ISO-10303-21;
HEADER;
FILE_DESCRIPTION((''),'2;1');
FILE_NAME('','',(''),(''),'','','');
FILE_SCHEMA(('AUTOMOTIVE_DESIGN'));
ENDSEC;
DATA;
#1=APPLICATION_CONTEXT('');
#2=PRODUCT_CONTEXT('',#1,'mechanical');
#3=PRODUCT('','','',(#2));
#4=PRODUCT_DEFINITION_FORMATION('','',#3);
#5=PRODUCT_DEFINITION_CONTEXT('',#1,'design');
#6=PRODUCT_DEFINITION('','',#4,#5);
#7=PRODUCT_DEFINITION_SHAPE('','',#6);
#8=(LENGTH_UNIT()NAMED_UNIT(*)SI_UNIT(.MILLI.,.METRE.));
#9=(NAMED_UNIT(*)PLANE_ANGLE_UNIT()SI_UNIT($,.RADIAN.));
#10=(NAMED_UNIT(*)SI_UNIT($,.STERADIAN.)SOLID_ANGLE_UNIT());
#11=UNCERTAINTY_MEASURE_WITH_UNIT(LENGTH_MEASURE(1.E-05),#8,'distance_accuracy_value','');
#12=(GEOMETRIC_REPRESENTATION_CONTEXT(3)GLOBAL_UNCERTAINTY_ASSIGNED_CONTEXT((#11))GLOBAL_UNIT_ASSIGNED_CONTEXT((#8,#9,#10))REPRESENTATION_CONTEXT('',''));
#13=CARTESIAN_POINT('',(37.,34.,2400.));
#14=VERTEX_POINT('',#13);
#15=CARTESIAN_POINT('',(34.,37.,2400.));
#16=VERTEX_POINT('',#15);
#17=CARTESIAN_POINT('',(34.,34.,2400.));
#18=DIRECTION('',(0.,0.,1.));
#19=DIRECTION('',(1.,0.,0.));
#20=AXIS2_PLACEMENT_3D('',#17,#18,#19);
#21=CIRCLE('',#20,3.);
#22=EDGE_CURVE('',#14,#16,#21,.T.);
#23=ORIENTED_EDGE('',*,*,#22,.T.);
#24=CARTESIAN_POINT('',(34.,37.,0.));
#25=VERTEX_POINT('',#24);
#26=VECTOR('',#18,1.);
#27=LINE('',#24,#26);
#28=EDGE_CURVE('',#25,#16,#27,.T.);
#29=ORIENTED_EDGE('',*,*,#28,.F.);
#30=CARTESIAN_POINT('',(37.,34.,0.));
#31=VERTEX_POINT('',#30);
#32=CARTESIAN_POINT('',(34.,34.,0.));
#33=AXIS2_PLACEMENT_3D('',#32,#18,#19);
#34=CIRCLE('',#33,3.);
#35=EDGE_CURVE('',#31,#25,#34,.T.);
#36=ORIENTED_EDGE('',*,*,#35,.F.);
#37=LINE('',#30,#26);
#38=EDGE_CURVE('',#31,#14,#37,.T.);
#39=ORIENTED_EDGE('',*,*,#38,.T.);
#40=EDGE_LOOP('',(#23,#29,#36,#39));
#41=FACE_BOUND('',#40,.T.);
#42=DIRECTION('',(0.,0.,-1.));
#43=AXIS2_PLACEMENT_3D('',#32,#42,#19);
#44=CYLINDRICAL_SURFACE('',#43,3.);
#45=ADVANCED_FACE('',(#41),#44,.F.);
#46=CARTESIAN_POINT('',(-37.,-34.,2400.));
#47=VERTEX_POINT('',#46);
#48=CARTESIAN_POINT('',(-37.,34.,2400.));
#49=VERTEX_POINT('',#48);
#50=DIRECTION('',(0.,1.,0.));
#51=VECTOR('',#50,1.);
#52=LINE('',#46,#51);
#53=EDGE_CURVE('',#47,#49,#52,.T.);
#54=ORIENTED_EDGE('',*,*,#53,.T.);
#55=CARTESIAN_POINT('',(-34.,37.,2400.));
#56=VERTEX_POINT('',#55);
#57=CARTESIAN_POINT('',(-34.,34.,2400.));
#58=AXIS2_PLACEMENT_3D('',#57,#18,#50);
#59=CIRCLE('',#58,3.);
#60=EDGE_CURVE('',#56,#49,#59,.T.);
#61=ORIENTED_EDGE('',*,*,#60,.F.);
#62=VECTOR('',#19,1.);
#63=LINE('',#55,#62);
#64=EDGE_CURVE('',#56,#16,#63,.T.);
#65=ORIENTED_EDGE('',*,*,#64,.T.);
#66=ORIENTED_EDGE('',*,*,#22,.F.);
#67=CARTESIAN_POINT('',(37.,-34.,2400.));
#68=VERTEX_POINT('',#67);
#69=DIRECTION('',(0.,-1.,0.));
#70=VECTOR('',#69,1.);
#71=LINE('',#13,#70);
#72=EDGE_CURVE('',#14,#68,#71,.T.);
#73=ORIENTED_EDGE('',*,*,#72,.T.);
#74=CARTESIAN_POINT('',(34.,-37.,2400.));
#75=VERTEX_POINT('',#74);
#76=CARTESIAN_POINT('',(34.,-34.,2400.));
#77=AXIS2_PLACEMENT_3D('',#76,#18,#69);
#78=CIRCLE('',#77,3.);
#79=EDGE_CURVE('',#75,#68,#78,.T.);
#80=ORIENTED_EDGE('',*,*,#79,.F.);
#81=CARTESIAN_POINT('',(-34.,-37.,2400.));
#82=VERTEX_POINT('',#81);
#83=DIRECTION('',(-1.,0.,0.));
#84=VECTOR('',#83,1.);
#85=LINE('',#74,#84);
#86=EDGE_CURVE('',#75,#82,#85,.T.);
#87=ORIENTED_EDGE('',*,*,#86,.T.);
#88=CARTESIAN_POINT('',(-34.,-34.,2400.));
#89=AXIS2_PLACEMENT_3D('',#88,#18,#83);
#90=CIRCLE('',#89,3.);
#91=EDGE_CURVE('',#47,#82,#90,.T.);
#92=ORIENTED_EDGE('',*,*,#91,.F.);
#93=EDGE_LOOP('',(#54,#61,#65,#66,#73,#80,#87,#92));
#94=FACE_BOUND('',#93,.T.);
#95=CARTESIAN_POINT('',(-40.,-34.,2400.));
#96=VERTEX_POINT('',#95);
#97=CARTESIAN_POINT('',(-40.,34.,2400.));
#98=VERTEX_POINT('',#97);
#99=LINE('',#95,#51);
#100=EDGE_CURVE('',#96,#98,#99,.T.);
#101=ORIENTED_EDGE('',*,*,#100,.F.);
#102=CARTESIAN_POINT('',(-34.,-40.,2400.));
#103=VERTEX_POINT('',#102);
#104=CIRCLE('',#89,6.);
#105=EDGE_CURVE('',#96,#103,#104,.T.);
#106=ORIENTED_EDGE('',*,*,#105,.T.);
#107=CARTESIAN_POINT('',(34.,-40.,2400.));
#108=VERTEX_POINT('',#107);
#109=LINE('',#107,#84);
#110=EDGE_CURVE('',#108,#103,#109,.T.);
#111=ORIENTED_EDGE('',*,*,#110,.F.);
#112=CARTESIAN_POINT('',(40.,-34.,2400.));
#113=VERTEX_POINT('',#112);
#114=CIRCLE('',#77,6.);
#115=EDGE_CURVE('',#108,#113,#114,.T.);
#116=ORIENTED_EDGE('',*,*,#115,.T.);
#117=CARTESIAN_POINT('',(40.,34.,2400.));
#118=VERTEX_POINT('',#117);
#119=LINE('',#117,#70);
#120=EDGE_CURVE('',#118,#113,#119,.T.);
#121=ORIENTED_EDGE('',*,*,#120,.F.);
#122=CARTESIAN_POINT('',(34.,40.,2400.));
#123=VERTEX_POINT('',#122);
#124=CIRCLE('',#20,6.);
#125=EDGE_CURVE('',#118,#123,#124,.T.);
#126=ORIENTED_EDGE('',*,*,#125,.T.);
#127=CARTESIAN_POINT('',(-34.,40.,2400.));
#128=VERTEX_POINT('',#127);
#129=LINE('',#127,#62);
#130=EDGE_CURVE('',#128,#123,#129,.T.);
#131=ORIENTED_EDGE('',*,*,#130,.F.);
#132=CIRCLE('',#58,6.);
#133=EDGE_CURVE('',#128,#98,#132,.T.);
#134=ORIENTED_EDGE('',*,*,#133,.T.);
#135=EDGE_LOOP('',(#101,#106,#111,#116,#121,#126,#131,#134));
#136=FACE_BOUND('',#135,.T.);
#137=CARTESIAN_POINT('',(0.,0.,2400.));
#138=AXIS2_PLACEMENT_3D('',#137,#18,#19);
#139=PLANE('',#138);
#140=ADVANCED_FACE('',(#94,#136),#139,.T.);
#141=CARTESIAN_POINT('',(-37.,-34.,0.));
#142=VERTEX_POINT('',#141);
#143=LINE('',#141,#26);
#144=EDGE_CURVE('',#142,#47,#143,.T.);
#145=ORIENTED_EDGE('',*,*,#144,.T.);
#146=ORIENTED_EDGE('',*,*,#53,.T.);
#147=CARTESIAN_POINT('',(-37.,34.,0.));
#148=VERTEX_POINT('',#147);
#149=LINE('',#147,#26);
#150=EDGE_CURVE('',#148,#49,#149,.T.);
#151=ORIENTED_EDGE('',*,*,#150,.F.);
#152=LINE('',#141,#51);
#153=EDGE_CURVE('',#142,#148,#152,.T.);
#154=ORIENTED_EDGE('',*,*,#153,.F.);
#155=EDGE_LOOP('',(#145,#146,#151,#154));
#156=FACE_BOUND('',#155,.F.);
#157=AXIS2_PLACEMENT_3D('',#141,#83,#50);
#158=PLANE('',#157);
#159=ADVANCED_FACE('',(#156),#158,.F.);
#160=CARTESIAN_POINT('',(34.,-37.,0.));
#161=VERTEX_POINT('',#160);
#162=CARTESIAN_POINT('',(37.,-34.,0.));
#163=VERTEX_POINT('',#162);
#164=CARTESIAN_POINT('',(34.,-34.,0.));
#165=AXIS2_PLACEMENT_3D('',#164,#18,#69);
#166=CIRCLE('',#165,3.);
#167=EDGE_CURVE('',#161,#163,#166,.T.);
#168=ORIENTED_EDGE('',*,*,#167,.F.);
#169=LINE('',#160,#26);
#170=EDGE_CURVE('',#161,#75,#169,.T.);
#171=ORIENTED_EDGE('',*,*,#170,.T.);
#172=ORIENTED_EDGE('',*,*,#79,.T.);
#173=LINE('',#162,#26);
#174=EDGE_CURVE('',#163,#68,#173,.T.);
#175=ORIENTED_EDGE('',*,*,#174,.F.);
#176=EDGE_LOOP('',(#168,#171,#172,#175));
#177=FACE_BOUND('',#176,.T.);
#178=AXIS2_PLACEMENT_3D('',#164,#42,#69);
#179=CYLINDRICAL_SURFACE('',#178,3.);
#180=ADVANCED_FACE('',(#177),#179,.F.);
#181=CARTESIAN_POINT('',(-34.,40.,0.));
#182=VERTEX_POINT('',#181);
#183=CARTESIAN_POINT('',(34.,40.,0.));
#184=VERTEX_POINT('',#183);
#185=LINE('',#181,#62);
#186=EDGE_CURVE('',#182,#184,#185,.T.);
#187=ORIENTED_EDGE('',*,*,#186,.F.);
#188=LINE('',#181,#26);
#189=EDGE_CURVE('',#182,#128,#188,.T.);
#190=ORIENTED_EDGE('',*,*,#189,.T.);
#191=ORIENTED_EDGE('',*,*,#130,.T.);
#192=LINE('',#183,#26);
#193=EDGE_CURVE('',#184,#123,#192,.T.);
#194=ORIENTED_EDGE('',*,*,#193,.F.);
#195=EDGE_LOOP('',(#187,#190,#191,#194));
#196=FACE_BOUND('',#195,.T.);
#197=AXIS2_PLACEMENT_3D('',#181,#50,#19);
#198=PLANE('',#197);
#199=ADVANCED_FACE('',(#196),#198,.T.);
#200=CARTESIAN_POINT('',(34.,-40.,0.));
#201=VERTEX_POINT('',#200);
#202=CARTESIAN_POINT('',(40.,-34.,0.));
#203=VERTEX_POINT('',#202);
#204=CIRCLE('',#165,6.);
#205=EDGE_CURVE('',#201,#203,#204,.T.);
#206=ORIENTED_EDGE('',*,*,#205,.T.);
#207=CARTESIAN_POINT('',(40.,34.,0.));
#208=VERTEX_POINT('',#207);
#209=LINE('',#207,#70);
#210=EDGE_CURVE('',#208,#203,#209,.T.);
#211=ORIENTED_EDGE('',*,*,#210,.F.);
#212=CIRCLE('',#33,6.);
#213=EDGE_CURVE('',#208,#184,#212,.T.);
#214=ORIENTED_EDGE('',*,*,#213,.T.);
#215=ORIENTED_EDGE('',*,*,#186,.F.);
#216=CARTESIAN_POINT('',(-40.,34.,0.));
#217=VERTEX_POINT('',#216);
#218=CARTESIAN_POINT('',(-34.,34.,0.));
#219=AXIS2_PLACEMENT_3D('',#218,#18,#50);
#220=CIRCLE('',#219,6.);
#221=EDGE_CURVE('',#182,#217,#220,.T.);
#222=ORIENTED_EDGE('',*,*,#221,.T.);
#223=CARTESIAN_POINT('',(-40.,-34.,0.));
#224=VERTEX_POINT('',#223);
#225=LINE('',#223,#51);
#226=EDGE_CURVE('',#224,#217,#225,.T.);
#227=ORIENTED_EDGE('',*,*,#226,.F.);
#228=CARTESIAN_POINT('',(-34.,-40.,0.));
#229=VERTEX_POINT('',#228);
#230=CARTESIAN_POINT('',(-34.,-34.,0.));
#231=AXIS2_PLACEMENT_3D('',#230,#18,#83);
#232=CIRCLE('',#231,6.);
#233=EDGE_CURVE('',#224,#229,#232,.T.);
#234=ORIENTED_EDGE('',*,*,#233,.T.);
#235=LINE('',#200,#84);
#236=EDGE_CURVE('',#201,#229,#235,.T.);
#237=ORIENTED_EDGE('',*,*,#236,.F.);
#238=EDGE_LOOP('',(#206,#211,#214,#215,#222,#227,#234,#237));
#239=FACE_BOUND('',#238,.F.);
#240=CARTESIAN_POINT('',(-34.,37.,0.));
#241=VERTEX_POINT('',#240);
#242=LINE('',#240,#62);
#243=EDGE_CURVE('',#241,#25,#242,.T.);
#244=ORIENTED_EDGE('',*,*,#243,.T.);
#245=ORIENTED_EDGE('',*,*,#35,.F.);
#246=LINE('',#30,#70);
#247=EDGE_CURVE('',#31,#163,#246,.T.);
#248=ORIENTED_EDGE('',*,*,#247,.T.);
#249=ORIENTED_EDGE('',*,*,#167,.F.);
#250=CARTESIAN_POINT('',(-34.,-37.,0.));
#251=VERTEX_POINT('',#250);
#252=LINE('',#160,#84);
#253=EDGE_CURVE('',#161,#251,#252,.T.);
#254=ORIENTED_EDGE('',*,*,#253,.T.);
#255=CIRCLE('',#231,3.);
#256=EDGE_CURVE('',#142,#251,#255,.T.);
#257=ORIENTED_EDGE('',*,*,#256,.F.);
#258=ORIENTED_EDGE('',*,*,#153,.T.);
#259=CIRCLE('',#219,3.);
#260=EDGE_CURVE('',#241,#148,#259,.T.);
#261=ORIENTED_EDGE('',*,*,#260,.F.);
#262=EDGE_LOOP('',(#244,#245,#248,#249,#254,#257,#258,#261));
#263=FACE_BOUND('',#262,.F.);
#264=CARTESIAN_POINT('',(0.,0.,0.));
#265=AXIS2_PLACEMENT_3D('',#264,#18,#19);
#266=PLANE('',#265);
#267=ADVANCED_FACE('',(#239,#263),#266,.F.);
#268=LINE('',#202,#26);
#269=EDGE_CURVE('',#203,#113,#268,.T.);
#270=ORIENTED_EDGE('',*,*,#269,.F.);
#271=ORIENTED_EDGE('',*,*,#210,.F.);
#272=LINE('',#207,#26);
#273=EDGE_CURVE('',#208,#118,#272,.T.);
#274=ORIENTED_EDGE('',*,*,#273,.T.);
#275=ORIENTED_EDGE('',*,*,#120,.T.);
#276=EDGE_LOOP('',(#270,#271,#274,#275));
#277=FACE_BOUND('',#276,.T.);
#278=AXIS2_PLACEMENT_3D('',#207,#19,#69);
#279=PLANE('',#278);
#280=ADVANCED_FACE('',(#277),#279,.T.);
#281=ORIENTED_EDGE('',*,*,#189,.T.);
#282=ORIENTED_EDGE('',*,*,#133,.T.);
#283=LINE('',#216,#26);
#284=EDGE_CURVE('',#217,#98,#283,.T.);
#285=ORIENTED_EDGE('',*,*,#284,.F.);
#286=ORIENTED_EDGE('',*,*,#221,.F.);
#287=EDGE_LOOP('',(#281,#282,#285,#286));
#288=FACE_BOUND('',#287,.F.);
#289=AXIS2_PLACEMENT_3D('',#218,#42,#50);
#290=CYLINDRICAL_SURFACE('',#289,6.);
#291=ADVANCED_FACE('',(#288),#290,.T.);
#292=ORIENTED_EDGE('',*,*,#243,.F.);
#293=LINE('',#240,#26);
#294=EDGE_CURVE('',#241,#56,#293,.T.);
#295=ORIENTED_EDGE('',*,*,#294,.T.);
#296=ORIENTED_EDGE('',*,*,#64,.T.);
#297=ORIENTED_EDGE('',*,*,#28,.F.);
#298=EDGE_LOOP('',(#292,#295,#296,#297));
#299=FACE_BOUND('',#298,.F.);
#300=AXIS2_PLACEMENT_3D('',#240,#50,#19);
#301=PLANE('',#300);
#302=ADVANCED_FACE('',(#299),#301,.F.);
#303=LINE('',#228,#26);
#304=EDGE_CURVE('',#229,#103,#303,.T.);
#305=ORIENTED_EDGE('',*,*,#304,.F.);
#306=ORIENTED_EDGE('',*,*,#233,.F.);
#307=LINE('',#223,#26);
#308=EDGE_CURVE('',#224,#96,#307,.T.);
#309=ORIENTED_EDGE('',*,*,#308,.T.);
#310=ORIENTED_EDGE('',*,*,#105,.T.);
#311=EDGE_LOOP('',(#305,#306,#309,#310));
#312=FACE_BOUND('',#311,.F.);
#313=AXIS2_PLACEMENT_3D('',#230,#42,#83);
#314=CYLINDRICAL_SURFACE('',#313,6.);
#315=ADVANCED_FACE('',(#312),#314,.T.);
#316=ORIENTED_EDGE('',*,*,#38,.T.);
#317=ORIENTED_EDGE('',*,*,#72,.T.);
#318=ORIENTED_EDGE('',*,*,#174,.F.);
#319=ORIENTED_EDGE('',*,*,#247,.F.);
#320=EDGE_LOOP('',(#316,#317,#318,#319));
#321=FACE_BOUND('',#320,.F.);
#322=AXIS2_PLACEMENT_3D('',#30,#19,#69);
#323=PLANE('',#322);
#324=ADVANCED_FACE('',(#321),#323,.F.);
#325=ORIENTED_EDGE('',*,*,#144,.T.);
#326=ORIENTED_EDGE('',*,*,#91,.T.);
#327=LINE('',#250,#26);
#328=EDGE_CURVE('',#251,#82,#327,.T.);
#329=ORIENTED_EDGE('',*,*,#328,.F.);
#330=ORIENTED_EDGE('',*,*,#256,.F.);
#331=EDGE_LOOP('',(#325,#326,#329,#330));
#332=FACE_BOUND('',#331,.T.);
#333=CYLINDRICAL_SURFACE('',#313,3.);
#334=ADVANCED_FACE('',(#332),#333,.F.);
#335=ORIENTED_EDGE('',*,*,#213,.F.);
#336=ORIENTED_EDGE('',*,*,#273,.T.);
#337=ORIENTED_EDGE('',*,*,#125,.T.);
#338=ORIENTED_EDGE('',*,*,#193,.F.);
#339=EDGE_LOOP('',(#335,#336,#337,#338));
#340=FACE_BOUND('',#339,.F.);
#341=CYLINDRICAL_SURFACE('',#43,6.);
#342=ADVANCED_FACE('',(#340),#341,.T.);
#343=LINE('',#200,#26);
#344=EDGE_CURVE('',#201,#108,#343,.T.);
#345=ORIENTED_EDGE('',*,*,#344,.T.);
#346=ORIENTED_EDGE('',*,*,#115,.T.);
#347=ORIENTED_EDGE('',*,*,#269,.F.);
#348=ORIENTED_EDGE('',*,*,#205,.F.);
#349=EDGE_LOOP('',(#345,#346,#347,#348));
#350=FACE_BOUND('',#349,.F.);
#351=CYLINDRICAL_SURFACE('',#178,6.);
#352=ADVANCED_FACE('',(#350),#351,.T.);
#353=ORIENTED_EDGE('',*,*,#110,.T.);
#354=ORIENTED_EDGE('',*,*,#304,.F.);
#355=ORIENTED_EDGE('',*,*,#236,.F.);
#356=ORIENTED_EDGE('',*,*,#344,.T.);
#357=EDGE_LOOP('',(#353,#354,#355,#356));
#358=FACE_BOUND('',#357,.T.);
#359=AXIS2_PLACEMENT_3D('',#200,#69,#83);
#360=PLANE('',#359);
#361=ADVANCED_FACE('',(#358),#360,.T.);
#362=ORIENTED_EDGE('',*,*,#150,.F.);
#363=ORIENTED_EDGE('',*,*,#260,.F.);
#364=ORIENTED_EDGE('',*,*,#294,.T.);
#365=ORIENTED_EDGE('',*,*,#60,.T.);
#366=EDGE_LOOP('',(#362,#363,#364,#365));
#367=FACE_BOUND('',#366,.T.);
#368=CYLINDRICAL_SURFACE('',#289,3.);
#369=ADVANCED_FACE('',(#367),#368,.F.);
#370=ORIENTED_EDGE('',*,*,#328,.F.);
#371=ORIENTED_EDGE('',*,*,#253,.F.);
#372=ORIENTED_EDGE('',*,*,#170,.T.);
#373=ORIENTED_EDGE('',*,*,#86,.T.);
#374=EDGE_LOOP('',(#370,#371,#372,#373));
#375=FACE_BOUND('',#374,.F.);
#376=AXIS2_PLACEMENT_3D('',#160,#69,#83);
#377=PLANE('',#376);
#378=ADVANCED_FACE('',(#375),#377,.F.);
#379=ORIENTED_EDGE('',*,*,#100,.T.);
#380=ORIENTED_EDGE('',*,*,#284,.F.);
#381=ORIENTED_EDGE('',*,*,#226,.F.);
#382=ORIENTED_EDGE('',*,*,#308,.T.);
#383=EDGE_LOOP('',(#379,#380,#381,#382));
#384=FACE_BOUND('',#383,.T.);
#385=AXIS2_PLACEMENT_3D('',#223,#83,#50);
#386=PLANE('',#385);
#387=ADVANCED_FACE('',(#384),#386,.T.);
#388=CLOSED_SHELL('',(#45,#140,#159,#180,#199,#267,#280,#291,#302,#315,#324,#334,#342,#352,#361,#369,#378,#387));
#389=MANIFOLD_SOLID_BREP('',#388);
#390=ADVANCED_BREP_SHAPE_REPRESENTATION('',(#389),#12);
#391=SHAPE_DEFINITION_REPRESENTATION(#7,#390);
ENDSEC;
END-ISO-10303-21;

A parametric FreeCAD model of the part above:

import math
import FreeCAD as App
import Part
import Sketcher
from FreeCAD import Vector

doc = App.newDocument("Part")
body = doc.addObject("PartDesign::Body", "Body")

# Sketch on XY plane
sketch1 = doc.addObject("Sketcher::SketchObject", "Sketch")
body.addObject(sketch1)
sketch1.AttachmentSupport = (doc.XY_Plane, [""])
sketch1.MapMode = "FlatFace"
sketch1.addGeometry(Part.LineSegment(Vector(-40, 34, 0), Vector(-40, -34, 0)), False)
sketch1.addGeometry(Part.ArcOfCircle(Part.Circle(Vector(-34, -34, 0), Vector(0, 0, 1), 6), math.radians(180), math.radians(270)), False)
sketch1.addGeometry(Part.LineSegment(Vector(-34, -40, 0), Vector(34, -40, 0)), False)
sketch1.addGeometry(Part.ArcOfCircle(Part.Circle(Vector(34, -34, 0), Vector(0, 0, 1), 6), math.radians(-90), math.radians(0)), False)
sketch1.addGeometry(Part.LineSegment(Vector(40, -34, 0), Vector(40, 34, 0)), False)
sketch1.addGeometry(Part.ArcOfCircle(Part.Circle(Vector(34, 34, 0), Vector(0, 0, 1), 6), math.radians(0), math.radians(90)), False)
sketch1.addGeometry(Part.LineSegment(Vector(34, 40, 0), Vector(-34, 40, 0)), False)
sketch1.addGeometry(Part.ArcOfCircle(Part.Circle(Vector(-34, 34, 0), Vector(0, 0, 1), 6), math.radians(90), math.radians(180)), False)
sketch1.addGeometry(Part.ArcOfCircle(Part.Circle(Vector(-34, 34, 0), Vector(0, 0, 1), 3), math.radians(90), math.radians(180)), False)
sketch1.addGeometry(Part.LineSegment(Vector(-34, 37, 0), Vector(34, 37, 0)), False)
sketch1.addGeometry(Part.ArcOfCircle(Part.Circle(Vector(34, 34, 0), Vector(0, 0, 1), 3), math.radians(0), math.radians(90)), False)
sketch1.addGeometry(Part.LineSegment(Vector(37, 34, 0), Vector(37, -34, 0)), False)
sketch1.addGeometry(Part.ArcOfCircle(Part.Circle(Vector(34, -34, 0), Vector(0, 0, 1), 3), math.radians(-90), math.radians(0)), False)
sketch1.addGeometry(Part.LineSegment(Vector(34, -37, 0), Vector(-34, -37, 0)), False)
sketch1.addGeometry(Part.ArcOfCircle(Part.Circle(Vector(-34, -34, 0), Vector(0, 0, 1), 3), math.radians(180), math.radians(270)), False)
sketch1.addGeometry(Part.LineSegment(Vector(-37, -34, 0), Vector(-37, 34, 0)), False)
sketch1.addConstraint(Sketcher.Constraint("Tangent", 0, 2, 1, 1))
sketch1.addConstraint(Sketcher.Constraint("Tangent", 1, 2, 2, 1))
sketch1.addConstraint(Sketcher.Constraint("Tangent", 2, 2, 3, 1))
sketch1.addConstraint(Sketcher.Constraint("Tangent", 3, 2, 4, 1))
sketch1.addConstraint(Sketcher.Constraint("Tangent", 4, 2, 5, 1))
sketch1.addConstraint(Sketcher.Constraint("Tangent", 5, 2, 6, 1))
sketch1.addConstraint(Sketcher.Constraint("Tangent", 6, 2, 7, 1))
sketch1.addConstraint(Sketcher.Constraint("Tangent", 7, 2, 0, 1))
sketch1.addConstraint(Sketcher.Constraint("Tangent", 8, 1, 9, 1))
sketch1.addConstraint(Sketcher.Constraint("Tangent", 9, 2, 10, 2))
sketch1.addConstraint(Sketcher.Constraint("Tangent", 10, 1, 11, 1))
sketch1.addConstraint(Sketcher.Constraint("Tangent", 11, 2, 12, 2))
sketch1.addConstraint(Sketcher.Constraint("Tangent", 12, 1, 13, 1))
sketch1.addConstraint(Sketcher.Constraint("Tangent", 13, 2, 14, 2))
sketch1.addConstraint(Sketcher.Constraint("Tangent", 14, 1, 15, 1))
sketch1.addConstraint(Sketcher.Constraint("Tangent", 15, 2, 8, 2))
sketch1.addConstraint(Sketcher.Constraint("Vertical", 0))
sketch1.addConstraint(Sketcher.Constraint("Horizontal", 2))
sketch1.addConstraint(Sketcher.Constraint("Vertical", 4))
sketch1.addConstraint(Sketcher.Constraint("Horizontal", 6))
sketch1.addConstraint(Sketcher.Constraint("Horizontal", 9))
sketch1.addConstraint(Sketcher.Constraint("Vertical", 11))
sketch1.addConstraint(Sketcher.Constraint("Horizontal", 13))
sketch1.addConstraint(Sketcher.Constraint("Vertical", 15))
sketch1.addConstraint(Sketcher.Constraint("Coincident", 8, 3, 7, 3))
sketch1.addConstraint(Sketcher.Constraint("Coincident", 10, 3, 5, 3))
sketch1.addConstraint(Sketcher.Constraint("Coincident", 12, 3, 3, 3))
sketch1.addConstraint(Sketcher.Constraint("Equal", 1, 3))
sketch1.addConstraint(Sketcher.Constraint("Equal", 3, 5))
sketch1.addConstraint(Sketcher.Constraint("Equal", 5, 7))
sketch1.addConstraint(Sketcher.Constraint("Equal", 12, 14))
sketch1.addConstraint(Sketcher.Constraint("Symmetric", 1, 3, 5, 3, -1, 1))
sketch1.addConstraint(Sketcher.Constraint("Equal", 13, 0))
sketch1.addConstraint(Sketcher.Constraint("Radius", 1, 6.0))
sketch1.addConstraint(Sketcher.Constraint("Radius", 8, 3.0))
sketch1.addConstraint(Sketcher.Constraint("DistanceX", 0, 2, -1, 1, 40.0))
pad1 = doc.addObject("PartDesign::Pad", "Pad")
body.addObject(pad1)
pad1.Profile = sketch1
pad1.Length = 2400

doc.recompute()
